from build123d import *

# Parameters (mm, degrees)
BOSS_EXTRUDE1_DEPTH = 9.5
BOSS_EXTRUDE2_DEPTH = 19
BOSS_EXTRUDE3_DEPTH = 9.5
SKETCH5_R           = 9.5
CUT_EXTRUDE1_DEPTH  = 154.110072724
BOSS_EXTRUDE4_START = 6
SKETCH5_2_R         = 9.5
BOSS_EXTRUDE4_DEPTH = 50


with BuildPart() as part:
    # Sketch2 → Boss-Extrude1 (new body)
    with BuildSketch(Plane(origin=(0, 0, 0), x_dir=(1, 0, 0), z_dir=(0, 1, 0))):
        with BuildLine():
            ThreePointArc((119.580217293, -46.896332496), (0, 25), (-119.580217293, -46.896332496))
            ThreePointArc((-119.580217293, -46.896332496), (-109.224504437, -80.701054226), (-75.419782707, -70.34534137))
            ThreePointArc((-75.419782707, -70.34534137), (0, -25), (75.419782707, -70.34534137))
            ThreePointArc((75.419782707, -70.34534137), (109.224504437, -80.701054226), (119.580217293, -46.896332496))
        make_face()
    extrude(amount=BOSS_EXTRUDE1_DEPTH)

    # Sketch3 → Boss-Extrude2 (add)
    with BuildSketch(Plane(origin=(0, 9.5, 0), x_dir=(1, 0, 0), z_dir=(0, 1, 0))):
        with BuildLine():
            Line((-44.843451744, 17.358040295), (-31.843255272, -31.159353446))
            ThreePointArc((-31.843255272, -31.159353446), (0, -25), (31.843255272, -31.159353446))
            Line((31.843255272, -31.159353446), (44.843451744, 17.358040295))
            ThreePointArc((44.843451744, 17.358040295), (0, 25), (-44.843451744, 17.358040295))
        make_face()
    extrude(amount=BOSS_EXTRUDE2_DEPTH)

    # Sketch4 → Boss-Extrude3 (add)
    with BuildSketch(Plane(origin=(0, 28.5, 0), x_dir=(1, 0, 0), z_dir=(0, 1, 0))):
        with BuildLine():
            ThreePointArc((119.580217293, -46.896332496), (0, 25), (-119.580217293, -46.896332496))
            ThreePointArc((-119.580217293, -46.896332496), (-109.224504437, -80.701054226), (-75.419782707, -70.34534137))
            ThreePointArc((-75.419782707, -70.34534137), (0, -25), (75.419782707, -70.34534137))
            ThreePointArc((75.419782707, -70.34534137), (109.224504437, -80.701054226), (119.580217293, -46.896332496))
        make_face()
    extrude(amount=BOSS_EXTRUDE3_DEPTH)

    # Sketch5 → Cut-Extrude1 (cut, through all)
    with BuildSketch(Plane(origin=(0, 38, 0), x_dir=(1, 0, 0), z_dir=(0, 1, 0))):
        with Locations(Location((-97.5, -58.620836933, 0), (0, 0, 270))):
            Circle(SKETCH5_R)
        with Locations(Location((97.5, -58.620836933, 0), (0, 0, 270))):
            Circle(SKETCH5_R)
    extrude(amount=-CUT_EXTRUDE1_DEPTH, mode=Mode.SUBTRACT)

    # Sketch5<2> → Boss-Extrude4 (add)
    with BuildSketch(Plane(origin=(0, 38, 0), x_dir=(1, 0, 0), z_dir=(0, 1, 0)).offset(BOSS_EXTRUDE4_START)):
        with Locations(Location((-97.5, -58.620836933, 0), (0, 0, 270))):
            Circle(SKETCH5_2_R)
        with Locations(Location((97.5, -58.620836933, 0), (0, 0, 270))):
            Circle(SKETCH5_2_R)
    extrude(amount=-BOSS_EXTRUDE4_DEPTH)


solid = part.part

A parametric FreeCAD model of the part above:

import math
import FreeCAD as App
import Part
import Sketcher
Q = App.Units.Quantity

doc = App.newDocument("Part")
body = doc.addObject("PartDesign::Body", "Body")

# Sketch on XZ plane
sketch1 = body.newObject("Sketcher::SketchObject", "Sketch")
sketch1.AttachmentSupport = (doc.getObject("XZ_Plane"), [""])
sketch1.MapMode = "FlatFace"
sketch1.addGeometry([
    Part.ArcOfCircle(Part.Circle(App.Vector(0, 110.392935, 0), App.Vector(0, 0, 1), 135.392935), math.radians(-152.031882), math.radians(-27.968118)),
    Part.ArcOfCircle(Part.Circle(App.Vector(-97.5, 58.620837, 0), App.Vector(0, 0, 1), 25), math.radians(27.968118), math.radians(207.968118)),
    Part.ArcOfCircle(Part.Circle(App.Vector(0, 110.392935, 0), App.Vector(0, 0, 1), 85.392935), math.radians(-152.031882), math.radians(-27.968118)),
    Part.ArcOfCircle(Part.Circle(App.Vector(97.5, 58.620837, 0), App.Vector(0, 0, 1), 25), math.radians(-27.968118), math.radians(152.031882)),
], False)
sketch1.addConstraint([
    Sketcher.Constraint("Tangent", 0, 1, 1, 2),
    Sketcher.Constraint("Tangent", 1, 1, 2, 1),
    Sketcher.Constraint("Tangent", 2, 2, 3, 2),
    Sketcher.Constraint("Tangent", 3, 1, 0, 2),
    Sketcher.Constraint("Coincident", 2, 3, 0, 3),
    Sketcher.Constraint("Symmetric", 1, 3, 3, 3, -2),
    Sketcher.Constraint("Radius", 1, 25.0),
    Sketcher.Constraint("DistanceX", 1, 3, 3, 3, 195.0),
    Sketcher.Constraint("Radius", 0, 135.392935),
    Sketcher.Constraint("DistanceY", -1, 1, 1, 1, 70.345341),
])
pad1 = body.newObject("PartDesign::Pad", "Pad")
pad1.Profile = sketch1
pad1.Length = 9.5
pad1.Reversed = True

# Sketch on XZ plane
sketch2 = body.newObject("Sketcher::SketchObject", "Sketch001")
sketch2.AttachmentSupport = (doc.getObject("XZ_Plane"), [""])
sketch2.MapMode = "FlatFace"
sketch2.AttachmentOffset = App.Placement(App.Vector(0, 0, -9.5), App.Rotation())
sketch2.addGeometry([
    Part.LineSegment(App.Vector(-44.843452, -17.35804, 0), App.Vector(-31.843255, 31.159353, 0)),
    Part.ArcOfCircle(Part.Circle(App.Vector(0, 110.392935, 0), App.Vector(0, 0, 1), 85.392935), math.radians(-111.894745), math.radians(-68.105255)),
    Part.LineSegment(App.Vector(31.843255, 31.159353, 0), App.Vector(44.843452, -17.35804, 0)),
    Part.ArcOfCircle(Part.Circle(App.Vector(0, 110.392935, 0), App.Vector(0, 0, 1), 135.392935), math.radians(-109.342215), math.radians(-70.657785)),
], False)
sketch2.addConstraint([
    Sketcher.Constraint("Coincident", 0, 2, 1, 1),
    Sketcher.Constraint("Coincident", 1, 2, 2, 1),
    Sketcher.Constraint("Coincident", 2, 2, 3, 2),
    Sketcher.Constraint("Coincident", 3, 1, 0, 1),
    Sketcher.Constraint("Coincident", 3, 3, 1, 3),
    Sketcher.Constraint("Symmetric", 0, 2, 1, 2, -2),
    Sketcher.Constraint("Horizontal", 2, 2, 3, 1),
    Sketcher.Constraint("Angle", 0, Q("75 deg")),
    Sketcher.Constraint("Radius", 1, 85.392935),
    Sketcher.Constraint("Radius", 3, 135.392935),
    Sketcher.Constraint("DistanceX", -1, 1, 2, 2, 44.843452),
    Sketcher.Constraint("DistanceY", 2, 2, -1, 1, 17.35804),
])
pad2 = body.newObject("PartDesign::Pad", "Pad001")
pad2.Profile = sketch2
pad2.Length = 19
pad2.Reversed = True

# Sketch on XZ plane
sketch3 = body.newObject("Sketcher::SketchObject", "Sketch002")
sketch3.AttachmentSupport = (doc.getObject("XZ_Plane"), [""])
sketch3.MapMode = "FlatFace"
sketch3.AttachmentOffset = App.Placement(App.Vector(0, 0, -28.5), App.Rotation())
sketch3.addGeometry([
    Part.ArcOfCircle(Part.Circle(App.Vector(0, 110.392935, 0), App.Vector(0, 0, 1), 135.392935), math.radians(-152.031882), math.radians(-27.968118)),
    Part.ArcOfCircle(Part.Circle(App.Vector(-97.5, 58.620837, 0), App.Vector(0, 0, 1), 25), math.radians(27.968118), math.radians(207.968118)),
    Part.ArcOfCircle(Part.Circle(App.Vector(0, 110.392935, 0), App.Vector(0, 0, 1), 85.392935), math.radians(-152.031882), math.radians(-27.968118)),
    Part.ArcOfCircle(Part.Circle(App.Vector(97.5, 58.620837, 0), App.Vector(0, 0, 1), 25), math.radians(-27.968118), math.radians(152.031882)),
], False)
sketch3.addConstraint([
    Sketcher.Constraint("Tangent", 0, 1, 1, 2),
    Sketcher.Constraint("Tangent", 1, 1, 2, 1),
    Sketcher.Constraint("Tangent", 2, 2, 3, 2),
    Sketcher.Constraint("Tangent", 3, 1, 0, 2),
    Sketcher.Constraint("Coincident", 2, 3, 0, 3),
    Sketcher.Constraint("Symmetric", 1, 3, 3, 3, -2),
    Sketcher.Constraint("Radius", 1, 25.0),
    Sketcher.Constraint("DistanceX", 1, 3, 3, 3, 195.0),
    Sketcher.Constraint("Radius", 0, 135.392935),
    Sketcher.Constraint("DistanceY", -1, 1, 1, 1, 70.345341),
])
pad3 = body.newObject("PartDesign::Pad", "Pad002")
pad3.Profile = sketch3
pad3.Length = 9.5
pad3.Reversed = True

# Sketch on XZ plane
sketch4 = body.newObject("Sketcher::SketchObject", "Sketch003")
sketch4.AttachmentSupport = (doc.getObject("XZ_Plane"), [""])
sketch4.MapMode = "FlatFace"
sketch4.AttachmentOffset = App.Placement(App.Vector(0, 0, -38), App.Rotation())
sketch4.addGeometry([
    Part.Circle(App.Vector(-97.5, 58.620837, 0), App.Vector(0, 0, 1), 9.5),
    Part.Circle(App.Vector(97.5, 58.620837, 0), App.Vector(0, 0, 1), 9.5),
], False)
sketch4.addConstraint([
    Sketcher.Constraint("Equal", 0, 1),
    Sketcher.Constraint("Symmetric", 0, 3, 1, 3, -2),
    Sketcher.Constraint("Diameter", 0, 19.0),
    Sketcher.Constraint("DistanceX", 0, 3, 1, 3, 195.0),
    Sketcher.Constraint("DistanceY", -1, 1, 0, 3, 58.620837),
])
pocket1 = body.newObject("PartDesign::Pocket", "Pocket")
pocket1.Profile = sketch4
pocket1.Type = "ThroughAll"
pocket1.Reversed = True

# Sketch on XZ plane
sketch5 = body.newObject("Sketcher::SketchObject", "Sketch004")
sketch5.AttachmentSupport = (doc.getObject("XZ_Plane"), [""])
sketch5.MapMode = "FlatFace"
sketch5.AttachmentOffset = App.Placement(App.Vector(0, 0, -44), App.Rotation())
sketch5.addGeometry([
    Part.Circle(App.Vector(-97.5, 58.620837, 0), App.Vector(0, 0, 1), 9.5),
    Part.Circle(App.Vector(97.5, 58.620837, 0), App.Vector(0, 0, 1), 9.5),
], False)
sketch5.addConstraint([
    Sketcher.Constraint("Equal", 0, 1),
    Sketcher.Constraint("Symmetric", 0, 3, 1, 3, -2),
    Sketcher.Constraint("Diameter", 0, 19.0),
    Sketcher.Constraint("DistanceX", 0, 3, 1, 3, 195.0),
    Sketcher.Constraint("DistanceY", -1, 1, 0, 3, 58.620837),
])
pad4 = body.newObject("PartDesign::Pad", "Pad003")
pad4.Profile = sketch5
pad4.Length = 50

doc.recompute()
